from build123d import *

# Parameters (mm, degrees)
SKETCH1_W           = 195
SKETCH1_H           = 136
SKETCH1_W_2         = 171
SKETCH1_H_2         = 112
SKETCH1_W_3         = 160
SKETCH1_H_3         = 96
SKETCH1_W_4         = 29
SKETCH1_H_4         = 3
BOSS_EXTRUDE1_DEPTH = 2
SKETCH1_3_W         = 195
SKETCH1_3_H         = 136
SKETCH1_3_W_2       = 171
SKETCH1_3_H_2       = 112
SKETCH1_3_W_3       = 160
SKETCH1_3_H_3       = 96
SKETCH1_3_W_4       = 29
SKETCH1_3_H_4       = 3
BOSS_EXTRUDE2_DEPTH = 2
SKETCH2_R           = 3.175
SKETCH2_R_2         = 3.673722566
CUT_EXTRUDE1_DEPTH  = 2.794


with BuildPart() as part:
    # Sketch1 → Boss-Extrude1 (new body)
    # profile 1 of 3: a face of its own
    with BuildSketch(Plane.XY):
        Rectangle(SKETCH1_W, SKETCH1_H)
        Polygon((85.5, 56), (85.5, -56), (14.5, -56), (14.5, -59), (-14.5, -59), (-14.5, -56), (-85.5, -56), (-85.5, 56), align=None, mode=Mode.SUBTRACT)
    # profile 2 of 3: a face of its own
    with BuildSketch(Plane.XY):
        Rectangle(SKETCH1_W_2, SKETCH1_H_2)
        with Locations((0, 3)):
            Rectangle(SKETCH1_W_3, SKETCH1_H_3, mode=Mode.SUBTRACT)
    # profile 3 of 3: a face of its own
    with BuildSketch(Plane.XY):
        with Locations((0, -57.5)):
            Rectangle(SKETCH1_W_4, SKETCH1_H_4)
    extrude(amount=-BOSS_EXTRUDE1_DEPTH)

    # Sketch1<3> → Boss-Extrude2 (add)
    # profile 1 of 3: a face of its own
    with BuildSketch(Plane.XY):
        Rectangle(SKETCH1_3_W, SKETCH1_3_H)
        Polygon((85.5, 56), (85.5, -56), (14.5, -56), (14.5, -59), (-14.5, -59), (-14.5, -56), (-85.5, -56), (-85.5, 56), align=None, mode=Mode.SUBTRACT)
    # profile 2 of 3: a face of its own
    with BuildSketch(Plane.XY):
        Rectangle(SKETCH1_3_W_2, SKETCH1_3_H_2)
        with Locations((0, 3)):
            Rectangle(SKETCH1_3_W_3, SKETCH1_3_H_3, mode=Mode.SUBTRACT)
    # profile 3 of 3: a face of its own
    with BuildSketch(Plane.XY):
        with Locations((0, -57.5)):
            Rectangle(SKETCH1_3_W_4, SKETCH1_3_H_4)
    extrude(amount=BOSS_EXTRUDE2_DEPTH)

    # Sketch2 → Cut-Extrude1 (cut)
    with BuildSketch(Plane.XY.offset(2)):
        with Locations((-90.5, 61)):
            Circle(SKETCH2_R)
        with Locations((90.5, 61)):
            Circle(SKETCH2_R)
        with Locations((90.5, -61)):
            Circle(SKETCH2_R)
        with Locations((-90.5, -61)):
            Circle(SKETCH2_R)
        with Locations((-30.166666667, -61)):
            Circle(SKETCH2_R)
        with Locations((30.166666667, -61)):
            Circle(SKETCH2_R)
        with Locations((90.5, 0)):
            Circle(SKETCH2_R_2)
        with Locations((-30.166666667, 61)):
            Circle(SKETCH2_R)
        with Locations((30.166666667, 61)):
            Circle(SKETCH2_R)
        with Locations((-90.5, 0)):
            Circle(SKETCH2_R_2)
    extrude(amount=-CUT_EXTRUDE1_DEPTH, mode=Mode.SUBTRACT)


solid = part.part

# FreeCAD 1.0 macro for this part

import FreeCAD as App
import Part
import Sketcher

V = App.Vector

doc = App.newDocument("Part")
params = doc.addObject("Spreadsheet::Sheet", "Params")
for row, (alias, value) in enumerate([
    ("sketch1_width", "195 mm"),
    ("sketch1_width2", "160 mm"),
    ("sketch1_height", "136 mm"),
    ("sketch1_height2", "96 mm"),
    ("pad1_length", "2 mm"),
    ("sketch2_width", "195 mm"),
    ("sketch2_width2", "160 mm"),
    ("sketch2_height", "136 mm"),
    ("sketch2_height2", "96 mm"),
    ("pad2_length", "2 mm"),
    ("sketch3_diameter", "6.35 mm"),
    ("pocket1_length", "2.794 mm"),
], start=1):
    params.set(f"A{row}", alias)
    params.set(f"B{row}", "=" + value)
    params.setAlias(f"B{row}", alias)

body = doc.addObject("PartDesign::Body", "Body")

# Sketch on XY plane
sketch1 = doc.addObject("Sketcher::SketchObject", "Sketch")
body.addObject(sketch1)
sketch1.AttachmentSupport = (doc.XY_Plane, [""])
sketch1.MapMode = "FlatFace"
sketch1.addGeometry([
    Part.LineSegment(V(-98, 68, 0), V(-98, -68, 0)),  # 0
    Part.LineSegment(V(-98, -68, 0), V(98, -68, 0)),  # 1
    Part.LineSegment(V(98, -68, 0), V(98, 68, 0)),  # 2
    Part.LineSegment(V(98, 68, 0), V(-98, 68, 0)),  # 3
    Part.LineSegment(V(-80, 51, 0), V(80, 51, 0)),  # 4
    Part.LineSegment(V(80, 51, 0), V(80, -45, 0)),  # 5
    Part.LineSegment(V(80, -45, 0), V(-80, -45, 0)),  # 6
    Part.LineSegment(V(-80, -45, 0), V(-80, 51, 0)),  # 7
], False)
sketch1.addConstraint([
    Sketcher.Constraint("Coincident", 0, 2, 1, 1),
    Sketcher.Constraint("Coincident", 1, 2, 2, 1),
    Sketcher.Constraint("Coincident", 2, 2, 3, 1),
    Sketcher.Constraint("Coincident", 3, 2, 0, 1),
    Sketcher.Constraint("Coincident", 4, 2, 5, 1),
    Sketcher.Constraint("Coincident", 5, 2, 6, 1),
    Sketcher.Constraint("Coincident", 6, 2, 7, 1),
    Sketcher.Constraint("Coincident", 7, 2, 4, 1),
    Sketcher.Constraint("Vertical", 0),
    Sketcher.Constraint("Horizontal", 1),
    Sketcher.Constraint("Vertical", 2),
    Sketcher.Constraint("Horizontal", 3),
    Sketcher.Constraint("Horizontal", 4),
    Sketcher.Constraint("Vertical", 5),
    Sketcher.Constraint("Horizontal", 6),
    Sketcher.Constraint("Vertical", 7),
    Sketcher.Constraint("Symmetric", 0, 2, 2, 2, -1, 1),
    Sketcher.Constraint("DistanceX", 1, 1, 1, 2, 195.0),
    Sketcher.Constraint("DistanceX", 4, 1, 4, 2, 160.0),
    Sketcher.Constraint("DistanceY", 0, 2, 0, 1, 136.0),
    Sketcher.Constraint("DistanceY", 5, 2, 5, 1, 96.0),
    Sketcher.Constraint("DistanceX", -1, 1, 4, 2, 80.0),
    Sketcher.Constraint("DistanceY", -1, 1, 4, 2, 51.0),
])
sketch1.setExpression("Constraints[17]", "Params.sketch1_width")
sketch1.setExpression("Constraints[18]", "Params.sketch1_width2")
sketch1.setExpression("Constraints[19]", "Params.sketch1_height")
sketch1.setExpression("Constraints[20]", "Params.sketch1_height2")
pad1 = doc.addObject("PartDesign::Pad", "Pad")
body.addObject(pad1)
pad1.Profile = sketch1
pad1.setExpression("Length", "Params.pad1_length")
pad1.Reversed = True

# Sketch on XY plane
sketch2 = doc.addObject("Sketcher::SketchObject", "Sketch001")
body.addObject(sketch2)
sketch2.AttachmentSupport = (doc.XY_Plane, [""])
sketch2.MapMode = "FlatFace"
sketch2.addGeometry([
    Part.LineSegment(V(-98, 68, 0), V(-98, -68, 0)),  # 0
    Part.LineSegment(V(-98, -68, 0), V(98, -68, 0)),  # 1
    Part.LineSegment(V(98, -68, 0), V(98, 68, 0)),  # 2
    Part.LineSegment(V(98, 68, 0), V(-98, 68, 0)),  # 3
    Part.LineSegment(V(-80, 51, 0), V(80, 51, 0)),  # 4
    Part.LineSegment(V(80, 51, 0), V(80, -45, 0)),  # 5
    Part.LineSegment(V(80, -45, 0), V(-80, -45, 0)),  # 6
    Part.LineSegment(V(-80, -45, 0), V(-80, 51, 0)),  # 7
], False)
sketch2.addConstraint([
    Sketcher.Constraint("Coincident", 0, 2, 1, 1),
    Sketcher.Constraint("Coincident", 1, 2, 2, 1),
    Sketcher.Constraint("Coincident", 2, 2, 3, 1),
    Sketcher.Constraint("Coincident", 3, 2, 0, 1),
    Sketcher.Constraint("Coincident", 4, 2, 5, 1),
    Sketcher.Constraint("Coincident", 5, 2, 6, 1),
    Sketcher.Constraint("Coincident", 6, 2, 7, 1),
    Sketcher.Constraint("Coincident", 7, 2, 4, 1),
    Sketcher.Constraint("Vertical", 0),
    Sketcher.Constraint("Horizontal", 1),
    Sketcher.Constraint("Vertical", 2),
    Sketcher.Constraint("Horizontal", 3),
    Sketcher.Constraint("Horizontal", 4),
    Sketcher.Constraint("Vertical", 5),
    Sketcher.Constraint("Horizontal", 6),
    Sketcher.Constraint("Vertical", 7),
    Sketcher.Constraint("Symmetric", 0, 2, 2, 2, -1, 1),
    Sketcher.Constraint("DistanceX", 1, 1, 1, 2, 195.0),
    Sketcher.Constraint("DistanceX", 4, 1, 4, 2, 160.0),
    Sketcher.Constraint("DistanceY", 0, 2, 0, 1, 136.0),
    Sketcher.Constraint("DistanceY", 5, 2, 5, 1, 96.0),
    Sketcher.Constraint("DistanceX", -1, 1, 4, 2, 80.0),
    Sketcher.Constraint("DistanceY", -1, 1, 4, 2, 51.0),
])
sketch2.setExpression("Constraints[17]", "Params.sketch2_width")
sketch2.setExpression("Constraints[18]", "Params.sketch2_width2")
sketch2.setExpression("Constraints[19]", "Params.sketch2_height")
sketch2.setExpression("Constraints[20]", "Params.sketch2_height2")
pad2 = doc.addObject("PartDesign::Pad", "Pad001")
body.addObject(pad2)
pad2.Profile = sketch2
pad2.setExpression("Length", "Params.pad2_length")

# Sketch on XY plane
sketch3 = doc.addObject("Sketcher::SketchObject", "Sketch002")
body.addObject(sketch3)
sketch3.AttachmentSupport = (doc.XY_Plane, [""])
sketch3.MapMode = "FlatFace"
sketch3.AttachmentOffset = App.Placement(V(0, 0, 2), App.Rotation())
sketch3.addGeometry([
    Part.Circle(V(-90.5, 61, 0), V(0, 0, 1), 3.2),  # 0
    Part.Circle(V(90.5, 61, 0), V(0, 0, 1), 3.2),  # 1
    Part.Circle(V(90.5, -61, 0), V(0, 0, 1), 3.2),  # 2
    Part.Circle(V(-90.5, -61, 0), V(0, 0, 1), 3.2),  # 3
    Part.Circle(V(-30.2, -61, 0), V(0, 0, 1), 3.2),  # 4
    Part.Circle(V(30.2, -61, 0), V(0, 0, 1), 3.2),  # 5
    Part.Circle(V(90.5, 0, 0), V(0, 0, 1), 3.7),  # 6
    Part.Circle(V(-30.2, 61, 0), V(0, 0, 1), 3.2),  # 7
    Part.Circle(V(30.2, 61, 0), V(0, 0, 1), 3.2),  # 8
    Part.Circle(V(-90.5, 0, 0), V(0, 0, 1), 3.7),  # 9
], False)
sketch3.addConstraint([
    Sketcher.Constraint("Equal", 0, 1),
    Sketcher.Constraint("Equal", 1, 2),
    Sketcher.Constraint("Equal", 2, 3),
    Sketcher.Constraint("Equal", 3, 4),
    Sketcher.Constraint("Equal", 4, 5),
    Sketcher.Constraint("Equal", 5, 7),
    Sketcher.Constraint("Equal", 7, 8),
    Sketcher.Constraint("Equal", 6, 9),
    Sketcher.Constraint("Symmetric", 0, 3, 2, 3, -1, 1),
    Sketcher.Constraint("Symmetric", 1, 3, 3, 3, -1, 1),
    Sketcher.Constraint("Symmetric", 5, 3, 7, 3, -1, 1),
    Sketcher.Constraint("Symmetric", 4, 3, 8, 3, -1, 1),
    Sketcher.Constraint("Symmetric", 6, 3, 9, 3, -1, 1),
    Sketcher.Constraint("Symmetric", 0, 3, 1, 3, -2),
    Sketcher.Constraint("Symmetric", 4, 3, 5, 3, -2),
    Sketcher.Constraint("PointOnObject", 6, 3, -1),
    Sketcher.Constraint("Horizontal", 3, 3, 4, 3),
    Sketcher.Constraint("Vertical", 2, 3, 6, 3),
    Sketcher.Constraint("Diameter", 0, 6.35),
    Sketcher.Constraint("DistanceY", -1, 1, 0, 3, 61.0),
    Sketcher.Constraint("DistanceX", 0, 3, 1, 3, 181.0),
    Sketcher.Constraint("Diameter", 6, 7.347445),
    Sketcher.Constraint("DistanceX", 4, 3, -1, 1, 30.166667),
])
sketch3.setExpression("Constraints[18]", "Params.sketch3_diameter")
pocket1 = doc.addObject("PartDesign::Pocket", "Pocket")
body.addObject(pocket1)
pocket1.Profile = sketch3
pocket1.setExpression("Length", "Params.pocket1_length")

doc.recompute()
